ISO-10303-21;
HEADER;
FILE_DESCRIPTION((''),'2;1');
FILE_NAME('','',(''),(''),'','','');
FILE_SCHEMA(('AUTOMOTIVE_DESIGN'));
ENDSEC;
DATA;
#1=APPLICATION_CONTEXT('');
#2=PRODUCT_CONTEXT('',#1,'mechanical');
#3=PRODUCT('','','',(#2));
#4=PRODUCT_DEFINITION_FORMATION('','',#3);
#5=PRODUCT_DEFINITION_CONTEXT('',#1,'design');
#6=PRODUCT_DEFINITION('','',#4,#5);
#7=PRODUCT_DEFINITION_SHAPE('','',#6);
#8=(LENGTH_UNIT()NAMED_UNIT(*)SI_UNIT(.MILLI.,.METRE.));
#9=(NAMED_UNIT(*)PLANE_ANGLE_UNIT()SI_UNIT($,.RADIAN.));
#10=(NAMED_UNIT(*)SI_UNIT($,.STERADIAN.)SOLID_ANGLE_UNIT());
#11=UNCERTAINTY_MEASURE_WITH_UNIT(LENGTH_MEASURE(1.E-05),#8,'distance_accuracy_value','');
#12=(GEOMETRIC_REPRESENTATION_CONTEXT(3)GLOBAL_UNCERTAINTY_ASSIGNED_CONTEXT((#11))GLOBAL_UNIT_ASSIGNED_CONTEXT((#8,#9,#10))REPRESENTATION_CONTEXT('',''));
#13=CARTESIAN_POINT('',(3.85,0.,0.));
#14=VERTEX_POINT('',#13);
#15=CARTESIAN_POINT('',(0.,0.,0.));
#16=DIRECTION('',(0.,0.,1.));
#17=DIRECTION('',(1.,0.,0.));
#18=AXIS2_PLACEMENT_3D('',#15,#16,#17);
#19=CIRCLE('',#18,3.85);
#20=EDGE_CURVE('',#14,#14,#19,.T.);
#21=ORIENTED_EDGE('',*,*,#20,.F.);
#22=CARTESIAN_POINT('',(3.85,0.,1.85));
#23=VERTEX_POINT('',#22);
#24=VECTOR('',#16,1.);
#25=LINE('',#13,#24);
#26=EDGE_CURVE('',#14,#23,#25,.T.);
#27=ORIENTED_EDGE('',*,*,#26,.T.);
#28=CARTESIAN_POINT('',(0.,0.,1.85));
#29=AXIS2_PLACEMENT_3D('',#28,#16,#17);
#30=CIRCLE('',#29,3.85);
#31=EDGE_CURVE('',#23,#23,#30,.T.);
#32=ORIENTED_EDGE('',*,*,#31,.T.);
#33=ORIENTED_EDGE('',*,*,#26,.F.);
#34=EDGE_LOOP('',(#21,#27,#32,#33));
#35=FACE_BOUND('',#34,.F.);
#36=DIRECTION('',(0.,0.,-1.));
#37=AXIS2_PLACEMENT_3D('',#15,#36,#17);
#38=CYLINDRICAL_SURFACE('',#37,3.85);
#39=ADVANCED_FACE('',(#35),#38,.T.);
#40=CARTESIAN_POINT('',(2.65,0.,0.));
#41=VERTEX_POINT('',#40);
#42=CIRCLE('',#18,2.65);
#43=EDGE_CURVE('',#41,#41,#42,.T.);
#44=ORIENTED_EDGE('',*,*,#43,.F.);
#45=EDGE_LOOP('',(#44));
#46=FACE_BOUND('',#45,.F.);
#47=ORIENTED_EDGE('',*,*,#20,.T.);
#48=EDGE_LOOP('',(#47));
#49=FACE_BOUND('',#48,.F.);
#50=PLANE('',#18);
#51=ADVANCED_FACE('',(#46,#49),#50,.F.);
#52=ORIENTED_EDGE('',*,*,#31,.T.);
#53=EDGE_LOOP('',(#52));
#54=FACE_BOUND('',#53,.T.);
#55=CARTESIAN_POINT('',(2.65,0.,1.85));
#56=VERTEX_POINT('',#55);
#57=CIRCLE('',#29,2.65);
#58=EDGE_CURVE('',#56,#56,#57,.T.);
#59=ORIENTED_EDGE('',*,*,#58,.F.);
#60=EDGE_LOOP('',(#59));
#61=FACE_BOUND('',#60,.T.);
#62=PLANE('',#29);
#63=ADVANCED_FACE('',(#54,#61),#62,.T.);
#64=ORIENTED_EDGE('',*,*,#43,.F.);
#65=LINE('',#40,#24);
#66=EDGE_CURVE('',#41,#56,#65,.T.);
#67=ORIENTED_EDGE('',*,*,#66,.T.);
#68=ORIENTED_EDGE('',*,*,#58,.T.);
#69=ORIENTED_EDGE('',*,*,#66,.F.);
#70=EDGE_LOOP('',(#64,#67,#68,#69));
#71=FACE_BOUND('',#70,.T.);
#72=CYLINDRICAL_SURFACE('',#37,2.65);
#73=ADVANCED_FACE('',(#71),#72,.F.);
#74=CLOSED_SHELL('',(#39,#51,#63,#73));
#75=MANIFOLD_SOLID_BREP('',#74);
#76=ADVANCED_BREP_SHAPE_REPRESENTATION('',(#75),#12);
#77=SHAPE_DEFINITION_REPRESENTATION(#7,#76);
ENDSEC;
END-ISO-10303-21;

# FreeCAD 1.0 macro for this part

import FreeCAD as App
import Part
import Sketcher

V = App.Vector
Q = App.Units.Quantity

doc = App.newDocument("Part")
body = doc.addObject("PartDesign::Body", "Body")

sketch1 = doc.addObject("Sketcher::SketchObject", "Sketch")
body.addObject(sketch1)
sketch1.AttachmentSupport = (doc.XY_Plane, [""])
sketch1.MapMode = "FlatFace"
sketch1.addGeometry([
    Part.Circle(V(0, 0, 0), V(0, 0, 1), 3.9),
    Part.Circle(V(0, 0, 0), V(0, 0, 1), 2.6),
], False)
sketch1.addConstraint([
    Sketcher.Constraint("Coincident", 0, 3, -1, 1),
    Sketcher.Constraint("Coincident", 1, 3, -1, 1),
    Sketcher.Constraint("Diameter", 1, Q("5.3 mm")),
    Sketcher.Constraint("Diameter", 0, Q("7.7 mm")),
])
pad1 = doc.addObject("PartDesign::Pad", "Pad")
body.addObject(pad1)
pad1.Profile = sketch1
pad1.Length = 1.85

doc.recompute()
